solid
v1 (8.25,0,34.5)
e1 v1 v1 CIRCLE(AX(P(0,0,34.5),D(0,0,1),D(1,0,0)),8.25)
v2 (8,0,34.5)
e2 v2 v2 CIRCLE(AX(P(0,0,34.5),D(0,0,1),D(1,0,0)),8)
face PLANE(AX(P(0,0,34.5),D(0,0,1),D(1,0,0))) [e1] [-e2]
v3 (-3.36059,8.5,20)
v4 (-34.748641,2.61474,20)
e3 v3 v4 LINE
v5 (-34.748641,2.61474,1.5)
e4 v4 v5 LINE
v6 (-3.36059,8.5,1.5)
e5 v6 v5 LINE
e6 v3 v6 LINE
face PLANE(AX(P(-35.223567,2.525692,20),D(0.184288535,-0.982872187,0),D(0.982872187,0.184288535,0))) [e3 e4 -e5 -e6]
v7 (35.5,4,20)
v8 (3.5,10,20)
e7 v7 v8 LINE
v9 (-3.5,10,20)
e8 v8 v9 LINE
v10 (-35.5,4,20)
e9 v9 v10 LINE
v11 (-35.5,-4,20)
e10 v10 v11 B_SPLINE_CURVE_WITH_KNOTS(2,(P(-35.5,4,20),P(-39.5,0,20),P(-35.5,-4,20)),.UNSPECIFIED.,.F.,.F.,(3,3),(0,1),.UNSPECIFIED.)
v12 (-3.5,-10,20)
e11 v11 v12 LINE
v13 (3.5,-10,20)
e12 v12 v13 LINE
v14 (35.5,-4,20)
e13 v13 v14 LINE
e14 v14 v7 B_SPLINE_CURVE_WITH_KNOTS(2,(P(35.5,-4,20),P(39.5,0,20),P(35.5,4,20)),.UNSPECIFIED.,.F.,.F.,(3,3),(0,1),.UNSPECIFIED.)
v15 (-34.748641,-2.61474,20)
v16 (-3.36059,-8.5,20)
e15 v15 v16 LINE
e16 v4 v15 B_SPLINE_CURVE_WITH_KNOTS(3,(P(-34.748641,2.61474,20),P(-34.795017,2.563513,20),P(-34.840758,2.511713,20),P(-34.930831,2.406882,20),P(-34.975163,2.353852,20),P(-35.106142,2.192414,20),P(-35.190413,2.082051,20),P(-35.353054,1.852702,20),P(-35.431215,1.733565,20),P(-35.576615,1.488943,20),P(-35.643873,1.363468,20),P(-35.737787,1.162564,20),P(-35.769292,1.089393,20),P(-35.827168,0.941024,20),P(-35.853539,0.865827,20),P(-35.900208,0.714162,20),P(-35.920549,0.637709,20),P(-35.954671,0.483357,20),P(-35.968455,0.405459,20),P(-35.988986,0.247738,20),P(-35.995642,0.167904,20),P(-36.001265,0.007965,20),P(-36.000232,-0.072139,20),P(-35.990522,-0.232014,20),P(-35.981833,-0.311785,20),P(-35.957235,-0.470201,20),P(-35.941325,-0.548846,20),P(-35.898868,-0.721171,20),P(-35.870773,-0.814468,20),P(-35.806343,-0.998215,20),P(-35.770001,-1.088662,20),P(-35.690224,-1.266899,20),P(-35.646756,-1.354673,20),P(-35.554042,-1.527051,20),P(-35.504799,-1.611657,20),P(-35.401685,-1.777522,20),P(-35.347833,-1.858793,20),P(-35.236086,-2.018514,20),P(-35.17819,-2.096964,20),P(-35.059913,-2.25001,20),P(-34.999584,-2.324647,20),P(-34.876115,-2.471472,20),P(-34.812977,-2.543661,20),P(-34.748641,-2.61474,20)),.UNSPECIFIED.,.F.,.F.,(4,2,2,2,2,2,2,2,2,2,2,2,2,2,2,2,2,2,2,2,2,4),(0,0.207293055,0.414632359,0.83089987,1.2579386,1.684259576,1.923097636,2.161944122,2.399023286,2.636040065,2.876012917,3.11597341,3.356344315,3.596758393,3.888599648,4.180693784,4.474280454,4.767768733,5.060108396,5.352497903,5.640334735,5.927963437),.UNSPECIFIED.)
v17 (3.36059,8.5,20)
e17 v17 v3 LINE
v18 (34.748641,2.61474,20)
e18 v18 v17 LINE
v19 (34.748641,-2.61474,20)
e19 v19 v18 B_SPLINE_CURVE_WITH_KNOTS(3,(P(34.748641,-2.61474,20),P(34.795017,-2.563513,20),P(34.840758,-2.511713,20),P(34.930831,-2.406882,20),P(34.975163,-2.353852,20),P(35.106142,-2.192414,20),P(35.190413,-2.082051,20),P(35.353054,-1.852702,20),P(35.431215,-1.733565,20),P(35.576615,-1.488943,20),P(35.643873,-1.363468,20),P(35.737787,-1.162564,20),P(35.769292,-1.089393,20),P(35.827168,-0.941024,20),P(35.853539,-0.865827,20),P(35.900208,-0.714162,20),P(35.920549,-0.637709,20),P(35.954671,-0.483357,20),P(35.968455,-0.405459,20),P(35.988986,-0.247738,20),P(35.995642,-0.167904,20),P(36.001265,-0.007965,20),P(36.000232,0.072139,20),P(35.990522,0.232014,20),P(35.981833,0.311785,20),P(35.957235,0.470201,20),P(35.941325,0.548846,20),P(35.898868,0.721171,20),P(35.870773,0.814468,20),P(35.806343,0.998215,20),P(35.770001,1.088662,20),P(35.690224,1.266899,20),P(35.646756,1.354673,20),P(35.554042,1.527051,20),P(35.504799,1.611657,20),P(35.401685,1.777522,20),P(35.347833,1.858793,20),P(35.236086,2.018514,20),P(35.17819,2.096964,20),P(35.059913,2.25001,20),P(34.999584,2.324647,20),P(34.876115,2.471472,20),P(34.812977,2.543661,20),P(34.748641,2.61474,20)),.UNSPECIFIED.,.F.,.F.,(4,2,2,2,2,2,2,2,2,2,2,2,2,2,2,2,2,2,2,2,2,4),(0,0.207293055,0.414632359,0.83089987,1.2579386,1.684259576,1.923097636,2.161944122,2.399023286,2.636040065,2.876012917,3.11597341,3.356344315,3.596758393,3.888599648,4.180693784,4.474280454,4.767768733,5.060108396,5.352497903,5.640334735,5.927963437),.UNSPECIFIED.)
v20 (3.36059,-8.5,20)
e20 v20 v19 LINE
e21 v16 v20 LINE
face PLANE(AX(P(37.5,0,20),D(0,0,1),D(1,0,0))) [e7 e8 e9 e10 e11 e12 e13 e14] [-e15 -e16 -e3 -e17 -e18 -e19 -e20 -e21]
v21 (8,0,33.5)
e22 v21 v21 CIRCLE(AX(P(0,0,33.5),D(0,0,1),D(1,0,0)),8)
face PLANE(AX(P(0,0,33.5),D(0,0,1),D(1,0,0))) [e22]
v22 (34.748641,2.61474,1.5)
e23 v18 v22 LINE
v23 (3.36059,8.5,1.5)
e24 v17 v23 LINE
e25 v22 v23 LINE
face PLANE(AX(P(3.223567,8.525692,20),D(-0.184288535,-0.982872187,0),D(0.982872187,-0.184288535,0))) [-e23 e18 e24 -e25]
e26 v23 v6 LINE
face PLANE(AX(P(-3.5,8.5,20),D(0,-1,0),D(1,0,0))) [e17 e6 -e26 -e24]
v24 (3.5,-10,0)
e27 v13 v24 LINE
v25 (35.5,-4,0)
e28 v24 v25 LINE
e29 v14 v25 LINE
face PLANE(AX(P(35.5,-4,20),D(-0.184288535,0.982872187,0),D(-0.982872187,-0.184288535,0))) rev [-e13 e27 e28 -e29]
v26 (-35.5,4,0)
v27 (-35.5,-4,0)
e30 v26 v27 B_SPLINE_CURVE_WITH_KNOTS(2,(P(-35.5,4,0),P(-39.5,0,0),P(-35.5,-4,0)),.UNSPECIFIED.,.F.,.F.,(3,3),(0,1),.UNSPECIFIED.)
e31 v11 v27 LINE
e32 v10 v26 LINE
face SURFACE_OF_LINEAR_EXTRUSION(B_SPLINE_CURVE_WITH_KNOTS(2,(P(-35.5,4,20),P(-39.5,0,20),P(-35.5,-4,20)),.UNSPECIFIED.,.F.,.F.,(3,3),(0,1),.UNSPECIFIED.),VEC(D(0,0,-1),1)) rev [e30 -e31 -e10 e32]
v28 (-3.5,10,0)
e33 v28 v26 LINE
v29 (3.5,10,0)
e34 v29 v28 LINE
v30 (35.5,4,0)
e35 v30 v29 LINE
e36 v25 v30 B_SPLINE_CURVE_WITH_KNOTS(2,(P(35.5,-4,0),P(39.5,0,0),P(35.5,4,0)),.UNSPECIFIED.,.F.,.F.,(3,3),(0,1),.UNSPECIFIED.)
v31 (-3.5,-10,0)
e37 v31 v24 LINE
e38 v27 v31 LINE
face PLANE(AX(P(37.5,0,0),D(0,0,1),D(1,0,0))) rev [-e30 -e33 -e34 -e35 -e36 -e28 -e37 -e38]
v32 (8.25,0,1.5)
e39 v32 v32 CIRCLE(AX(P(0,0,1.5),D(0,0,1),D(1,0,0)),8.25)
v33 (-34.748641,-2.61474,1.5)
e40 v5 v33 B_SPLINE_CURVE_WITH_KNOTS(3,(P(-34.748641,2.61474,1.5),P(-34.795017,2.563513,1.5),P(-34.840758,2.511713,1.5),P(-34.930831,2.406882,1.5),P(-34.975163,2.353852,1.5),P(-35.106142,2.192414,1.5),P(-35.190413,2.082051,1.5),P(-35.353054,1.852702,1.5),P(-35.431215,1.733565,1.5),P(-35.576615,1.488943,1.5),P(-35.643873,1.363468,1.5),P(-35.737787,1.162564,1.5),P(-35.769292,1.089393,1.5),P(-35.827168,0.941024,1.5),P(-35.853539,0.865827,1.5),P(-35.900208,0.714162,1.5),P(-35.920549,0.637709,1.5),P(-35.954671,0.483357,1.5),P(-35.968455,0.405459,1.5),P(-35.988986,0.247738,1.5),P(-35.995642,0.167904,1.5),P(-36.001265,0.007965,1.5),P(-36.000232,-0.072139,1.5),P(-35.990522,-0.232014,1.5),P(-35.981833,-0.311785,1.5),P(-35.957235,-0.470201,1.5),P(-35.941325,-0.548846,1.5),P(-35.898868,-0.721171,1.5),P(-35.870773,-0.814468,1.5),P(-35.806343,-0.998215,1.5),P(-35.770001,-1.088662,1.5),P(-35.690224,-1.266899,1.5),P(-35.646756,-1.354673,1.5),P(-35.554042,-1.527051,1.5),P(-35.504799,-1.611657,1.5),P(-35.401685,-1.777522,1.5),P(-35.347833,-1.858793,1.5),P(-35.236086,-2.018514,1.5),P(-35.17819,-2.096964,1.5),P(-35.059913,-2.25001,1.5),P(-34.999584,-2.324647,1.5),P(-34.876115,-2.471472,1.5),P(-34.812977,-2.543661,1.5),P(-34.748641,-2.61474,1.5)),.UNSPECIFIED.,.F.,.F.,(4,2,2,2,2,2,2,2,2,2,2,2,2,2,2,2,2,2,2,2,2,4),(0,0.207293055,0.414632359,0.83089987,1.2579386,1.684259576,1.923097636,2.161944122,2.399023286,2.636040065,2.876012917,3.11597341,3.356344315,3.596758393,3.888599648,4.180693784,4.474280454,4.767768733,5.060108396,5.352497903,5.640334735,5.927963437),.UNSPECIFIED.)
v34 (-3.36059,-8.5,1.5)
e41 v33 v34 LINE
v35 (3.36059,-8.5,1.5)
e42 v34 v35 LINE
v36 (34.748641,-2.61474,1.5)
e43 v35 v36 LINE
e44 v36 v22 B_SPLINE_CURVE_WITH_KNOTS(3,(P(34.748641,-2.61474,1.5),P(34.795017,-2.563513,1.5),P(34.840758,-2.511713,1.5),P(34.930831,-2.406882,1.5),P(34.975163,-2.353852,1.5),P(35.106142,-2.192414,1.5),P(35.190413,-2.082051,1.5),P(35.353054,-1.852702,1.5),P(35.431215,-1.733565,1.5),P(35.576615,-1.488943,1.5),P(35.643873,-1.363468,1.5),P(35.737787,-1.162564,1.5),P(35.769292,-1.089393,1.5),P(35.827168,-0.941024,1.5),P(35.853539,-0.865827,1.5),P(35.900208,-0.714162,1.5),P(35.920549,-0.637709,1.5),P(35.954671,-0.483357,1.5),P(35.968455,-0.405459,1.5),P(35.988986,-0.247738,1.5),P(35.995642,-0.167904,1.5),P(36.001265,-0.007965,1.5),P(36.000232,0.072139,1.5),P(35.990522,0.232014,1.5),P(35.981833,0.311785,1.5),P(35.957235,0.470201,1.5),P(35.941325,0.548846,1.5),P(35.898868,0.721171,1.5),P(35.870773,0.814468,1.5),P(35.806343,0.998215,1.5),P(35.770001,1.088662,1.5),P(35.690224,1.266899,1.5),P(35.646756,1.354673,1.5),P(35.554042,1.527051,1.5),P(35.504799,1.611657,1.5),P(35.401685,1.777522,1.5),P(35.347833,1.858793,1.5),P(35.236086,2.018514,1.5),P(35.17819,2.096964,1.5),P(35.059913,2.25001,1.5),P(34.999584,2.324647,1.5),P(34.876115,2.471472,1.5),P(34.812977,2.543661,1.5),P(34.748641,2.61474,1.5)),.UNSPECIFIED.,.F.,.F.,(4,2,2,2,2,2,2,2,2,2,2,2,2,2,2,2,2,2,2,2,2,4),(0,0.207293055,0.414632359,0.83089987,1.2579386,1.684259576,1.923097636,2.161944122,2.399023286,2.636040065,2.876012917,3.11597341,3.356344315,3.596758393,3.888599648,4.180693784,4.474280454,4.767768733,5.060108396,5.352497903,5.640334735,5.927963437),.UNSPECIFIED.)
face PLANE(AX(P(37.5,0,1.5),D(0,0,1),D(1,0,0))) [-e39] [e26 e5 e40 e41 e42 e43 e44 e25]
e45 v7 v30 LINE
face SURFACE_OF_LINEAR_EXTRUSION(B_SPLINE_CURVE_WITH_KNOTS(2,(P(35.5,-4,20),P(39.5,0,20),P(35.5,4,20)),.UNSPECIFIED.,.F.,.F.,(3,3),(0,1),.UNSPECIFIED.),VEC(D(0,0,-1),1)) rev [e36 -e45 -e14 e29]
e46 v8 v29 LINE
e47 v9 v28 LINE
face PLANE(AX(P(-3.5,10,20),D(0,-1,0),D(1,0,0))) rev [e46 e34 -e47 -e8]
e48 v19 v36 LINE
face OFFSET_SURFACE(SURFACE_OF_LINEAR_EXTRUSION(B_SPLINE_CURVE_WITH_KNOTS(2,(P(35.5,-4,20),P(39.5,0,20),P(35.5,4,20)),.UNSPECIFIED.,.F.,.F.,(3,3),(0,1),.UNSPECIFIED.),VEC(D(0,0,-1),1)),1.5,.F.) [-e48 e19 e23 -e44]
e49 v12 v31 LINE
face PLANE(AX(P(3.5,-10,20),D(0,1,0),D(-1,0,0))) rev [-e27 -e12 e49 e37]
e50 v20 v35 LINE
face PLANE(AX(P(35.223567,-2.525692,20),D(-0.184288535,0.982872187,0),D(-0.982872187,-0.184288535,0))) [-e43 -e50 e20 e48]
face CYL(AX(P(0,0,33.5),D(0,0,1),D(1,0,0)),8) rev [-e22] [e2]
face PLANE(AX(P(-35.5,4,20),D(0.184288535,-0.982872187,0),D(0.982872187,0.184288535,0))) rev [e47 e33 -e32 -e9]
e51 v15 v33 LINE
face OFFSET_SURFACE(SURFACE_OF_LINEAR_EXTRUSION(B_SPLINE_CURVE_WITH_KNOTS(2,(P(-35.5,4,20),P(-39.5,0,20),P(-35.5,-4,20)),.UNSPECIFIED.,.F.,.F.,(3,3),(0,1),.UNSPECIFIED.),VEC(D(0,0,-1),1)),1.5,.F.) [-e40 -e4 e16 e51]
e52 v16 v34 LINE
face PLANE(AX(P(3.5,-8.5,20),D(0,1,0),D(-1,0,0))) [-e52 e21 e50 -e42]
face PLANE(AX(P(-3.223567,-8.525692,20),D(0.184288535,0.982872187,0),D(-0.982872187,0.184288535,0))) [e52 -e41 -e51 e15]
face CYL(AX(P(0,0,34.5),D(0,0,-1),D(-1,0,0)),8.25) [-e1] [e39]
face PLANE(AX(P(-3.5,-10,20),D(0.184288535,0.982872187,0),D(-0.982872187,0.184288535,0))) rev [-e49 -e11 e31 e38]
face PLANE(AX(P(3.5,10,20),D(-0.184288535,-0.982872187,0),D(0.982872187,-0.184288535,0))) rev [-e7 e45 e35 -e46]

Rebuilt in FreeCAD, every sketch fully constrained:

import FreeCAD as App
import Part
import Sketcher

V = App.Vector


def faces_at(feature, points):
    """Names of the faces that lie closest to the given points."""
    faces = feature.Shape.Faces
    near = lambda p: min(range(len(faces)), key=lambda i: faces[i].distToShape(Part.Vertex(*p))[0])
    return sorted({f"Face{near(p) + 1}" for p in points})

doc = App.newDocument("Part")
params = doc.addObject("Spreadsheet::Sheet", "Params")
for row, (alias, value) in enumerate([
    ("sketch1_width", "7 mm"),
    ("pad1_length", "20 mm"),
    ("thickness_wall", "1.5 mm"),
    ("sketch2_diameter", "16.5 mm"),
    ("pad2_length", "33 mm"),
    ("sketch3_diameter", "16 mm"),
    ("pocket1_length", "1 mm"),
], start=1):
    params.set(f"A{row}", alias)
    params.set(f"B{row}", "=" + value)
    params.setAlias(f"B{row}", alias)

body = doc.addObject("PartDesign::Body", "Body")

# Sketch on XY plane
sketch1 = body.newObject("Sketcher::SketchObject", "Sketch")
sketch1.AttachmentSupport = (doc.getObject("XY_Plane"), [""])
sketch1.MapMode = "FlatFace"
sketch1.addGeometry(Part.LineSegment(V(-3.5, 10, 0), V(-35.5, 4, 0)), False)
sketch1.addGeometry(Part.BSplineCurve([V(-35.5, 4, 0), V(-39.5, 0, 0), V(-35.5, -4, 0)], [3, 3], [0, 1], False, 2, [1, 1, 1], False), False)
sketch1.addGeometry(Part.LineSegment(V(-35.5, -4, 0), V(-3.5, -10, 0)), False)
sketch1.addGeometry(Part.LineSegment(V(-3.5, -10, 0), V(3.5, -10, 0)), False)
sketch1.addGeometry(Part.LineSegment(V(3.5, -10, 0), V(35.5, -4, 0)), False)
sketch1.addGeometry(Part.BSplineCurve([V(35.5, 4, 0), V(39.5, 0, 0), V(35.5, -4, 0)], [3, 3], [0, 1], False, 2, [1, 1, 1], False), False)
sketch1.addGeometry(Part.LineSegment(V(35.5, 4, 0), V(3.5, 10, 0)), False)
sketch1.addGeometry(Part.LineSegment(V(3.5, 10, 0), V(-3.5, 10, 0)), False)
sketch1.addConstraint(Sketcher.Constraint("Block", 1))
sketch1.addConstraint(Sketcher.Constraint("Block", 5))
sketch1.addConstraint(Sketcher.Constraint("Coincident", 0, 2, 1, 1))
sketch1.addConstraint(Sketcher.Constraint("Coincident", 1, 2, 2, 1))
sketch1.addConstraint(Sketcher.Constraint("Coincident", 2, 2, 3, 1))
sketch1.addConstraint(Sketcher.Constraint("Coincident", 3, 2, 4, 1))
sketch1.addConstraint(Sketcher.Constraint("Coincident", 4, 2, 5, 2))
sketch1.addConstraint(Sketcher.Constraint("Coincident", 5, 1, 6, 1))
sketch1.addConstraint(Sketcher.Constraint("Coincident", 6, 2, 7, 1))
sketch1.addConstraint(Sketcher.Constraint("Coincident", 7, 2, 0, 1))
sketch1.addConstraint(Sketcher.Constraint("Horizontal", 3))
sketch1.addConstraint(Sketcher.Constraint("Horizontal", 7))
sketch1.addConstraint(Sketcher.Constraint("Symmetric", 2, 2, 6, 2, -1, 1))
sketch1.addConstraint(Sketcher.Constraint("Parallel", 0, 4))
sketch1.addConstraint(Sketcher.Constraint("Vertical", 3, 2, 6, 2))
sketch1.addConstraint(Sketcher.Constraint("DistanceX", 3, 1, 3, 2, 7.0))
sketch1.addConstraint(Sketcher.Constraint("DistanceY", 2, 2, -1, 1, 10.0))
sketch1.setExpression("Constraints[15]", "Params.sketch1_width")
pad1 = body.newObject("PartDesign::Pad", "Pad")
pad1.Profile = sketch1
pad1.setExpression("Length", "Params.pad1_length")
doc.recompute()

thickness = body.newObject("PartDesign::Thickness", "Thickness")
thickness.Base = (pad1, faces_at(pad1, [(0, 0, 20)]))
thickness.setExpression("Value", "Params.thickness_wall")
thickness.Reversed = True
thickness.Join = "Intersection"

# Sketch on XY plane
sketch2 = body.newObject("Sketcher::SketchObject", "Sketch001")
sketch2.AttachmentSupport = (doc.getObject("XY_Plane"), [""])
sketch2.MapMode = "FlatFace"
sketch2.AttachmentOffset = App.Placement(V(0, 0, 1.5), App.Rotation())
sketch2.addGeometry(Part.Circle(V(0, 0, 0), V(0, 0, 1), 8), False)
sketch2.addConstraint(Sketcher.Constraint("Coincident", 0, 3, -1, 1))
sketch2.addConstraint(Sketcher.Constraint("Diameter", 0, 16.5))
sketch2.setExpression("Constraints[1]", "Params.sketch2_diameter")
pad2 = body.newObject("PartDesign::Pad", "Pad001")
pad2.Profile = sketch2
pad2.setExpression("Length", "Params.pad2_length")

# Sketch on XY plane
sketch3 = body.newObject("Sketcher::SketchObject", "Sketch002")
sketch3.AttachmentSupport = (doc.getObject("XY_Plane"), [""])
sketch3.MapMode = "FlatFace"
sketch3.AttachmentOffset = App.Placement(V(0, 0, 34.5), App.Rotation())
sketch3.addGeometry(Part.Circle(V(0, 0, 0), V(0, 0, 1), 8), False)
sketch3.addConstraint(Sketcher.Constraint("Coincident", 0, 3, -1, 1))
sketch3.addConstraint(Sketcher.Constraint("Diameter", 0, 16.0))
sketch3.setExpression("Constraints[1]", "Params.sketch3_diameter")
pocket1 = body.newObject("PartDesign::Pocket", "Pocket")
pocket1.Profile = sketch3
pocket1.setExpression("Length", "Params.pocket1_length")

doc.recompute()
